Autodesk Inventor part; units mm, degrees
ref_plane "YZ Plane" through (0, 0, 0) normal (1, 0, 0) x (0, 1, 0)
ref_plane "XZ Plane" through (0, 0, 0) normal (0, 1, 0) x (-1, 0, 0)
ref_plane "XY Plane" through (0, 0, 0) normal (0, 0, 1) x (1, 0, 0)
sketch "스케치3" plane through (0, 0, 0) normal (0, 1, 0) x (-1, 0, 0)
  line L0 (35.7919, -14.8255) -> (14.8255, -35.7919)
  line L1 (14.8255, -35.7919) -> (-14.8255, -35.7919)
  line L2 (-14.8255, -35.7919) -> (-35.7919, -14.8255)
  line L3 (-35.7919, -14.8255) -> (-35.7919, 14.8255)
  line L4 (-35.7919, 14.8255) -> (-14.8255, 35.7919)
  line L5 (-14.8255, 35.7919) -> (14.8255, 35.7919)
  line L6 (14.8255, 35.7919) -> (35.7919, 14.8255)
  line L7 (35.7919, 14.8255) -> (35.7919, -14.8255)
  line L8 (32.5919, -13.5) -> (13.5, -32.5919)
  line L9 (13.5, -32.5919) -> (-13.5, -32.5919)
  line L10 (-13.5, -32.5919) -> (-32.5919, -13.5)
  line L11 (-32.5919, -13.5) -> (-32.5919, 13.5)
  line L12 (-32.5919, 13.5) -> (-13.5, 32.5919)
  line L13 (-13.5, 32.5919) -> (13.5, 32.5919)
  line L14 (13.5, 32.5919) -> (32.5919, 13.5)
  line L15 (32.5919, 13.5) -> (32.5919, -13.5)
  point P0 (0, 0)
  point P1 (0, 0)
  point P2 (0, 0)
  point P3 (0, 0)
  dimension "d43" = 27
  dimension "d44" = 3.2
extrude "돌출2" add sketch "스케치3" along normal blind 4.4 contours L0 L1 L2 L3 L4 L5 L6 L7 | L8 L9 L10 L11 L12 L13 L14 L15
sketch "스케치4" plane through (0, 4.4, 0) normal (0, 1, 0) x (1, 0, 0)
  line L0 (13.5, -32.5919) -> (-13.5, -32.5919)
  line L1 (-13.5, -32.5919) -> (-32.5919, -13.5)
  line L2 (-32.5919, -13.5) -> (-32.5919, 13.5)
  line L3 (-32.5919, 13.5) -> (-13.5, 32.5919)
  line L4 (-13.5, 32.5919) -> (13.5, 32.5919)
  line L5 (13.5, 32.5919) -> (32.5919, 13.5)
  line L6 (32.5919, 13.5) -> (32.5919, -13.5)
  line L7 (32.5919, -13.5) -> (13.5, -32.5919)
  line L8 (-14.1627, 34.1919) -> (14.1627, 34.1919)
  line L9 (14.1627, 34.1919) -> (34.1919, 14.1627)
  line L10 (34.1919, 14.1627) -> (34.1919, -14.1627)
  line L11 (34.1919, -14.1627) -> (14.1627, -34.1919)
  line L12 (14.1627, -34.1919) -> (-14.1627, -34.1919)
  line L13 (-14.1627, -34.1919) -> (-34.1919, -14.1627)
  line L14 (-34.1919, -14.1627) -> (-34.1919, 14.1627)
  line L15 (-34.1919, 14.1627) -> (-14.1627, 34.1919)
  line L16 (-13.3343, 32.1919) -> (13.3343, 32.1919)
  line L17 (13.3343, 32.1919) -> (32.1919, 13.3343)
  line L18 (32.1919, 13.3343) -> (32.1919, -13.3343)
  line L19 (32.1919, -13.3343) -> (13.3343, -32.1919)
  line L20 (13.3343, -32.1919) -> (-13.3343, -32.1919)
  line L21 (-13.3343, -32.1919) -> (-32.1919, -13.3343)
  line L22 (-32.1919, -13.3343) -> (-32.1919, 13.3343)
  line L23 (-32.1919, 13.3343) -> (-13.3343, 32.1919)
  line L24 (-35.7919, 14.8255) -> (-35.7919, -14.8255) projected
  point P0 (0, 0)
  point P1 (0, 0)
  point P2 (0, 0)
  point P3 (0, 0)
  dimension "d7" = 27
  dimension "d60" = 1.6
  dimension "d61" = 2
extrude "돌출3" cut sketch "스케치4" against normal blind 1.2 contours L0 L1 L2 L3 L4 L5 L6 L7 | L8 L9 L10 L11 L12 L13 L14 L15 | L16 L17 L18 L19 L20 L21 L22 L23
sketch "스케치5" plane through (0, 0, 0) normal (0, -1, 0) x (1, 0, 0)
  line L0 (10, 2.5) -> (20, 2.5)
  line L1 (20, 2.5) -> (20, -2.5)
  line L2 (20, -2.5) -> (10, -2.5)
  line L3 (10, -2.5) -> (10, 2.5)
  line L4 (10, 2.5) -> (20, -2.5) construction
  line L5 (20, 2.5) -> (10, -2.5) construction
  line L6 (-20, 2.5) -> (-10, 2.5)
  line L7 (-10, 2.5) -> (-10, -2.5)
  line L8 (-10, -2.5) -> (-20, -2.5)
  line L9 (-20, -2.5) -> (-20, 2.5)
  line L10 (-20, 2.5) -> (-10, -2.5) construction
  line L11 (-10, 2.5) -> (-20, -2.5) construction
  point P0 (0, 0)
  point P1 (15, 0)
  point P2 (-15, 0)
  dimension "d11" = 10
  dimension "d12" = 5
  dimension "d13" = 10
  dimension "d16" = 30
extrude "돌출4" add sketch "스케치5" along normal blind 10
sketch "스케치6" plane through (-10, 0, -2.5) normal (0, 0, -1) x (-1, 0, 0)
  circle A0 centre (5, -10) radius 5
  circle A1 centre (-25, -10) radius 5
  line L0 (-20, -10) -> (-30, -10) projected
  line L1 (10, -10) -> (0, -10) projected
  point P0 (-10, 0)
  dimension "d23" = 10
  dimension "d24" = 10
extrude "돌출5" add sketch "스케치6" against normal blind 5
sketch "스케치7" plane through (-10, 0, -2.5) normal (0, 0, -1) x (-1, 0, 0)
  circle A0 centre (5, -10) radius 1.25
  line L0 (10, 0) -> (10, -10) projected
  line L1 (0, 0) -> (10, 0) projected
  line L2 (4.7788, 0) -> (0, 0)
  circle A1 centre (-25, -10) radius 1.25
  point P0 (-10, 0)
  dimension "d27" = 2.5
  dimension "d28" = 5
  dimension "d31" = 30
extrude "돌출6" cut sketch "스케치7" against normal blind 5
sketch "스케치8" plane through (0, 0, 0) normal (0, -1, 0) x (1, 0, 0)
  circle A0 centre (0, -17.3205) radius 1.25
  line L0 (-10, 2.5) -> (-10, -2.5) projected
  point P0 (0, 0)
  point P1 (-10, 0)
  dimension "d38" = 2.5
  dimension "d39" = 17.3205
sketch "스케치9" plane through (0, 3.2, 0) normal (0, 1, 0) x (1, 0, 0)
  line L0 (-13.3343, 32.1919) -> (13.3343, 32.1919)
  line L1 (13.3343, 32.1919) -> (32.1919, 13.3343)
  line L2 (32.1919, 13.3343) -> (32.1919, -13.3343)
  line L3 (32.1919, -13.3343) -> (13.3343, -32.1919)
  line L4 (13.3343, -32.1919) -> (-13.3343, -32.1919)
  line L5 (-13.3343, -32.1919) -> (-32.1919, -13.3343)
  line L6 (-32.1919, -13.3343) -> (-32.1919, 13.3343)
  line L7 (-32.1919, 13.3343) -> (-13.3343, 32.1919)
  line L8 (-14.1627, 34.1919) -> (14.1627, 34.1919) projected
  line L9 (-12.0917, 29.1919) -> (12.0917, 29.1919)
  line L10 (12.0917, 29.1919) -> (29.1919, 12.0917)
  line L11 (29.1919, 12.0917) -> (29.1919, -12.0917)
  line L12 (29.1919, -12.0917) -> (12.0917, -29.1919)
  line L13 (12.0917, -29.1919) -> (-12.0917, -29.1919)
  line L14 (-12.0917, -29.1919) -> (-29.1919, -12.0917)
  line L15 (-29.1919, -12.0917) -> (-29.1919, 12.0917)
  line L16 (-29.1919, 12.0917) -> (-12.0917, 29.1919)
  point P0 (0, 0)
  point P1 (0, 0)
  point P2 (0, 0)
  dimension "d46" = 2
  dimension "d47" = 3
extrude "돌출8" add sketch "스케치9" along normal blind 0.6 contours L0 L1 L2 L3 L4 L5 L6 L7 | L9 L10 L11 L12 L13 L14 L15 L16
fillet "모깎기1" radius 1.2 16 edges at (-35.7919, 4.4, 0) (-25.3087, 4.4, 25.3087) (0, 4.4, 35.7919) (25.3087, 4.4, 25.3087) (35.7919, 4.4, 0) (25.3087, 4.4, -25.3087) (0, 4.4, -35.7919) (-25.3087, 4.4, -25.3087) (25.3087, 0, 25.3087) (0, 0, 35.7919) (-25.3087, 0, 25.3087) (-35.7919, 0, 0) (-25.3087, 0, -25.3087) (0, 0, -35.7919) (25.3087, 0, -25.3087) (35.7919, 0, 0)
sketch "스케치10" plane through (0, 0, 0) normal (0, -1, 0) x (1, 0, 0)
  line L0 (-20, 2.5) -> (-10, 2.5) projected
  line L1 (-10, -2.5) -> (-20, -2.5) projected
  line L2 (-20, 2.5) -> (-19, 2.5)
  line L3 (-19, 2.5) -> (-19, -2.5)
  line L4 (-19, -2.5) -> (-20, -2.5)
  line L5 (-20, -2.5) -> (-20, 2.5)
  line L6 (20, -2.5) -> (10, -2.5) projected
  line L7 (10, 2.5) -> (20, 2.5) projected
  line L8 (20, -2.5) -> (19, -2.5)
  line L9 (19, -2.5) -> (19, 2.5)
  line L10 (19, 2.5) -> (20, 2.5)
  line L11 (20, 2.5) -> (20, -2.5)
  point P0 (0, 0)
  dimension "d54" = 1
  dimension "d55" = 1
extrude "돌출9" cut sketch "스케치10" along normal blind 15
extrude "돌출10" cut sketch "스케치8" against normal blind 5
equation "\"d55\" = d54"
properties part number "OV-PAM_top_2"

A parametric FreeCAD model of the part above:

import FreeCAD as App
import Part
import Sketcher
from FreeCAD import Vector
Q = App.Units.Quantity


def edges_at(feature, points):
    """Names of the edges that pass closest to the given points."""
    edges = feature.Shape.Edges
    near = lambda p: min(range(len(edges)), key=lambda i: edges[i].distToShape(Part.Vertex(*p))[0])
    return sorted({f"Edge{near(p) + 1}" for p in points})


def add_polygon(sketch, points):
    """Adds a closed chain of lines whose ends are joined by coincident constraints."""
    first, n = sketch.GeometryCount, len(points)
    for a, b in zip(points, points[1:] + points[:1]):
        sketch.addGeometry(Part.LineSegment(App.Vector(*a, 0), App.Vector(*b, 0)), False)
    for i in range(n):
        sketch.addConstraint(Sketcher.Constraint("Coincident", first + i, 2, first + (i + 1) % n, 1))

doc = App.newDocument("Part")
params = doc.addObject("Spreadsheet::Sheet", "Params")
for row, (alias, value) in enumerate([
    ("pad1_length", "4.4 mm"),
    ("pocket1_length", "1.2 mm"),
    ("sketch3_width", "10 mm"),
    ("sketch3_height", "5 mm"),
    ("pad2_length", "10 mm"),
    ("sketch4_diameter", "10 mm"),
    ("pad3_length", "5 mm"),
    ("sketch5_diameter", "2.5 mm"),
    ("pocket2_length", "5 mm"),
    ("pad4_length", "0.6 mm"),
    ("fillet_radius", "1.2 mm"),
    ("sketch7_width", "1 mm"),
    ("sketch7_height", "5 mm"),
    ("pocket3_length", "15 mm"),
    ("sketch8_diameter", "2.5 mm"),
    ("pocket4_length", "5 mm"),
], start=1):
    params.set(f"A{row}", alias)
    params.set(f"B{row}", "=" + value)
    params.setAlias(f"B{row}", alias)

body = doc.addObject("PartDesign::Body", "Body")

# Sketch on XZ plane
sketch1 = body.newObject("Sketcher::SketchObject", "Sketch")
sketch1.AttachmentSupport = (doc.getObject("XZ_Plane"), [""])
sketch1.MapMode = "FlatFace"
add_polygon(sketch1, [(-15, -36), (-36, -15), (-36, 15), (-15, 36), (15, 36), (36, 15), (36, -15), (15, -36)])  # lines 0-7
sketch1.addConstraint([
    Sketcher.Constraint("Vertical", 1),
    Sketcher.Constraint("Horizontal", 3),
    Sketcher.Constraint("Vertical", 5),
    Sketcher.Constraint("Horizontal", 7),
    Sketcher.Constraint("Symmetric", 0, 2, 4, 2, -1, 1),
    Sketcher.Constraint("Symmetric", 2, 2, 6, 2, -1, 1),
    Sketcher.Constraint("Perpendicular", 0, 2),
    Sketcher.Constraint("Perpendicular", 2, 4),
    Sketcher.Constraint("Perpendicular", 4, 6),
    Sketcher.Constraint("Horizontal", 1, 2, 4, 2),
    Sketcher.Constraint("Vertical", 3, 2, 6, 2),
    Sketcher.Constraint("Equal", 7, 1),
    Sketcher.Constraint("DistanceX", 3, 1, 3, 2, Q("29.651 mm")),
    Sketcher.Constraint("Distance", 0, Q("29.651 mm")),
])
pad1 = body.newObject("PartDesign::Pad", "Pad")
pad1.Profile = sketch1
pad1.setExpression("Length", "Params.pad1_length")
pad1.Reversed = True

# Sketch on XZ plane
sketch2 = body.newObject("Sketcher::SketchObject", "Sketch001")
sketch2.AttachmentSupport = (doc.getObject("XZ_Plane"), [""])
sketch2.MapMode = "FlatFace"
sketch2.AttachmentOffset = App.Placement(Vector(0, 0, -4.4), App.Rotation())
add_polygon(sketch2, [(14, -34), (-14, -34), (-34, -14), (-34, 14), (-14, 34), (14, 34), (34, 14), (34, -14)])  # lines 0-7
sketch2.addConstraint([
    Sketcher.Constraint("Horizontal", 0),
    Sketcher.Constraint("Vertical", 2),
    Sketcher.Constraint("Horizontal", 4),
    Sketcher.Constraint("Vertical", 6),
    Sketcher.Constraint("Symmetric", 0, 2, 4, 2, -1, 1),
    Sketcher.Constraint("Symmetric", 1, 2, 5, 2, -1, 1),
    Sketcher.Constraint("Perpendicular", 1, 3),
    Sketcher.Constraint("Perpendicular", 5, 7),
    Sketcher.Constraint("Horizontal", 2, 2, 5, 2),
    Sketcher.Constraint("Horizontal", 1, 2, 6, 2),
    Sketcher.Constraint("Vertical", 0, 2, 3, 2),
    Sketcher.Constraint("Equal", 4, 2),
    Sketcher.Constraint("DistanceX", 0, 2, 0, 1, Q("28.3254 mm")),
    Sketcher.Constraint("DistanceY", 0, 2, -1, 1, Q("34.192 mm")),
])
pocket1 = body.newObject("PartDesign::Pocket", "Pocket")
pocket1.Profile = sketch2
pocket1.setExpression("Length", "Params.pocket1_length")
pocket1.Reversed = True

# Sketch on XZ plane
sketch3 = body.newObject("Sketcher::SketchObject", "Sketch002")
sketch3.AttachmentSupport = (doc.getObject("XZ_Plane"), [""])
sketch3.MapMode = "FlatFace"
add_polygon(sketch3, [(20, 2), (10, 2), (10, -2), (20, -2)])  # lines 0-3
add_polygon(sketch3, [(-10, 2), (-20, 2), (-20, -2), (-10, -2)])  # lines 4-7
sketch3.addConstraint([
    Sketcher.Constraint("Horizontal", 0),
    Sketcher.Constraint("Vertical", 1),
    Sketcher.Constraint("Horizontal", 2),
    Sketcher.Constraint("Vertical", 3),
    Sketcher.Constraint("Horizontal", 4),
    Sketcher.Constraint("Vertical", 5),
    Sketcher.Constraint("Horizontal", 6),
    Sketcher.Constraint("Vertical", 7),
    Sketcher.Constraint("Symmetric", 2, 2, 4, 2, -1, 1),
    Sketcher.Constraint("Symmetric", 0, 2, 6, 2, -1, 1),
    Sketcher.Constraint("Horizontal", 3, 2, 4, 2),
    Sketcher.Constraint("DistanceX", 0, 2, 0, 1, Q("10 mm")),
    Sketcher.Constraint("DistanceY", 1, 2, 1, 1, Q("5 mm")),
    Sketcher.Constraint("DistanceX", -1, 1, 0, 2, Q("10 mm")),
])
sketch3.setExpression("Constraints[19]", "Params.sketch3_width")
sketch3.setExpression("Constraints[20]", "Params.sketch3_height")
pad2 = body.newObject("PartDesign::Pad", "Pad001")
pad2.Profile = sketch3
pad2.setExpression("Length", "Params.pad2_length")

# Sketch on XY plane
sketch4 = body.newObject("Sketcher::SketchObject", "Sketch003")
sketch4.AttachmentSupport = (doc.getObject("XY_Plane"), [""])
sketch4.MapMode = "FlatFace"
sketch4.AttachmentOffset = App.Placement(Vector(0, 0, -2.5), App.Rotation())
sketch4.addGeometry([
    Part.Circle(Vector(-15, -10, 0), Vector(0, 0, 1), 5),
    Part.Circle(Vector(15, -10, 0), Vector(0, 0, 1), 5),
], False)
sketch4.addConstraint([
    Sketcher.Constraint("Equal", 0, 1),
    Sketcher.Constraint("Symmetric", 0, 3, 1, 3, -2),
    Sketcher.Constraint("Diameter", 0, Q("10 mm")),
    Sketcher.Constraint("DistanceY", 0, 3, -1, 1, Q("10 mm")),
    Sketcher.Constraint("DistanceX", 0, 3, -1, 1, Q("15 mm")),
])
sketch4.setExpression("Constraints[2]", "Params.sketch4_diameter")
pad3 = body.newObject("PartDesign::Pad", "Pad002")
pad3.Profile = sketch4
pad3.setExpression("Length", "Params.pad3_length")

# Sketch on XY plane
sketch5 = body.newObject("Sketcher::SketchObject", "Sketch004")
sketch5.AttachmentSupport = (doc.getObject("XY_Plane"), [""])
sketch5.MapMode = "FlatFace"
sketch5.AttachmentOffset = App.Placement(Vector(0, 0, -2.5), App.Rotation())
sketch5.addGeometry([
    Part.Circle(Vector(-15, -10, 0), Vector(0, 0, 1), 1.2),
    Part.Circle(Vector(15, -10, 0), Vector(0, 0, 1), 1.2),
], False)
sketch5.addConstraint([
    Sketcher.Constraint("Equal", 0, 1),
    Sketcher.Constraint("Symmetric", 0, 3, 1, 3, -2),
    Sketcher.Constraint("Diameter", 0, Q("2.5 mm")),
    Sketcher.Constraint("DistanceY", 0, 3, -1, 1, Q("10 mm")),
    Sketcher.Constraint("DistanceX", 0, 3, 1, 3, Q("30 mm")),
])
sketch5.setExpression("Constraints[2]", "Params.sketch5_diameter")
pocket2 = body.newObject("PartDesign::Pocket", "Pocket001")
pocket2.Profile = sketch5
pocket2.setExpression("Length", "Params.pocket2_length")
pocket2.Reversed = True

# Sketch on XZ plane
sketch6 = body.newObject("Sketcher::SketchObject", "Sketch005")
sketch6.AttachmentSupport = (doc.getObject("XZ_Plane"), [""])
sketch6.MapMode = "FlatFace"
sketch6.AttachmentOffset = App.Placement(Vector(0, 0, -3.2), App.Rotation())
add_polygon(sketch6, [(13, -32), (-13, -32), (-32, -13), (-32, 13), (-13, 32), (13, 32), (32, 13), (32, -13)])  # lines 0-7
sketch6.addConstraint([
    Sketcher.Constraint("Horizontal", 0),
    Sketcher.Constraint("Vertical", 2),
    Sketcher.Constraint("Horizontal", 4),
    Sketcher.Constraint("Vertical", 6),
    Sketcher.Constraint("Symmetric", 0, 2, 4, 2, -1, 1),
    Sketcher.Constraint("Symmetric", 1, 2, 5, 2, -1, 1),
    Sketcher.Constraint("Perpendicular", 1, 3),
    Sketcher.Constraint("Perpendicular", 5, 7),
    Sketcher.Constraint("Horizontal", 2, 2, 5, 2),
    Sketcher.Constraint("Horizontal", 1, 2, 6, 2),
    Sketcher.Constraint("Vertical", 0, 2, 3, 2),
    Sketcher.Constraint("Equal", 4, 2),
    Sketcher.Constraint("DistanceX", 0, 2, 0, 1, Q("26.6686 mm")),
    Sketcher.Constraint("DistanceY", 0, 2, -1, 1, Q("32.192 mm")),
])
pad4 = body.newObject("PartDesign::Pad", "Pad003")
pad4.Profile = sketch6
pad4.setExpression("Length", "Params.pad4_length")
pad4.Reversed = True
doc.recompute()

fillet = body.newObject("PartDesign::Fillet", "Fillet")
fillet.Base = (pad4, edges_at(pad4, [
    (-35.792, 4.4, 0),
    (-25.309, 4.4, 25.309),
    (0, 4.4, 35.792),
    (25.309, 4.4, 25.309),
    (35.792, 4.4, 0),
    (25.309, 4.4, -25.309),
    (0, 4.4, -35.792),
    (-25.309, 4.4, -25.309),
    (25.309, 0, 25.309),
    (0, 0, 35.792),
    (-25.309, 0, 25.309),
    (-35.792, 0, 0),
    (-25.309, 0, -25.309),
    (0, 0, -35.792),
    (25.309, 0, -25.309),
    (35.792, 0, 0),
]))
fillet.setExpression("Radius", "Params.fillet_radius")

# Sketch on XZ plane
sketch7 = body.newObject("Sketcher::SketchObject", "Sketch006")
sketch7.AttachmentSupport = (doc.getObject("XZ_Plane"), [""])
sketch7.MapMode = "FlatFace"
add_polygon(sketch7, [(-19, 2.5), (-20, 2.5), (-20, -2.5), (-19, -2.5)])  # lines 0-3
add_polygon(sketch7, [(19, -2.5), (20, -2.5), (20, 2.5), (19, 2.5)])  # lines 4-7
sketch7.addConstraint([
    Sketcher.Constraint("Horizontal", 0),
    Sketcher.Constraint("Vertical", 1),
    Sketcher.Constraint("Horizontal", 2),
    Sketcher.Constraint("Vertical", 3),
    Sketcher.Constraint("Horizontal", 4),
    Sketcher.Constraint("Vertical", 5),
    Sketcher.Constraint("Horizontal", 6),
    Sketcher.Constraint("Vertical", 7),
    Sketcher.Constraint("Symmetric", 0, 2, 4, 2, -1, 1),
    Sketcher.Constraint("Symmetric", 2, 2, 6, 2, -1, 1),
    Sketcher.Constraint("Horizontal", 2, 2, 4, 2),
    Sketcher.Constraint("DistanceX", 0, 2, 0, 1, Q("1 mm")),
    Sketcher.Constraint("DistanceY", 1, 2, 1, 1, Q("5 mm")),
    Sketcher.Constraint("DistanceX", 0, 2, -1, 1, Q("20 mm")),
])
sketch7.setExpression("Constraints[19]", "Params.sketch7_width")
sketch7.setExpression("Constraints[20]", "Params.sketch7_height")
pocket3 = body.newObject("PartDesign::Pocket", "Pocket002")
pocket3.Profile = sketch7
pocket3.setExpression("Length", "Params.pocket3_length")
pocket3.Reversed = True

# Sketch on XZ plane
sketch8 = body.newObject("Sketcher::SketchObject", "Sketch007")
sketch8.AttachmentSupport = (doc.getObject("XZ_Plane"), [""])
sketch8.MapMode = "FlatFace"
sketch8.addGeometry(Part.Circle(Vector(0, -17.3, 0), Vector(0, 0, 1), 1.2), False)
sketch8.addConstraint([
    Sketcher.Constraint("PointOnObject", 0, 3, -2),
    Sketcher.Constraint("Diameter", 0, Q("2.5 mm")),
    Sketcher.Constraint("DistanceY", 0, 3, -1, 1, Q("17.3205 mm")),
])
sketch8.setExpression("Constraints[1]", "Params.sketch8_diameter")
pocket4 = body.newObject("PartDesign::Pocket", "Pocket003")
pocket4.Profile = sketch8
pocket4.setExpression("Length", "Params.pocket4_length")

doc.recompute()
